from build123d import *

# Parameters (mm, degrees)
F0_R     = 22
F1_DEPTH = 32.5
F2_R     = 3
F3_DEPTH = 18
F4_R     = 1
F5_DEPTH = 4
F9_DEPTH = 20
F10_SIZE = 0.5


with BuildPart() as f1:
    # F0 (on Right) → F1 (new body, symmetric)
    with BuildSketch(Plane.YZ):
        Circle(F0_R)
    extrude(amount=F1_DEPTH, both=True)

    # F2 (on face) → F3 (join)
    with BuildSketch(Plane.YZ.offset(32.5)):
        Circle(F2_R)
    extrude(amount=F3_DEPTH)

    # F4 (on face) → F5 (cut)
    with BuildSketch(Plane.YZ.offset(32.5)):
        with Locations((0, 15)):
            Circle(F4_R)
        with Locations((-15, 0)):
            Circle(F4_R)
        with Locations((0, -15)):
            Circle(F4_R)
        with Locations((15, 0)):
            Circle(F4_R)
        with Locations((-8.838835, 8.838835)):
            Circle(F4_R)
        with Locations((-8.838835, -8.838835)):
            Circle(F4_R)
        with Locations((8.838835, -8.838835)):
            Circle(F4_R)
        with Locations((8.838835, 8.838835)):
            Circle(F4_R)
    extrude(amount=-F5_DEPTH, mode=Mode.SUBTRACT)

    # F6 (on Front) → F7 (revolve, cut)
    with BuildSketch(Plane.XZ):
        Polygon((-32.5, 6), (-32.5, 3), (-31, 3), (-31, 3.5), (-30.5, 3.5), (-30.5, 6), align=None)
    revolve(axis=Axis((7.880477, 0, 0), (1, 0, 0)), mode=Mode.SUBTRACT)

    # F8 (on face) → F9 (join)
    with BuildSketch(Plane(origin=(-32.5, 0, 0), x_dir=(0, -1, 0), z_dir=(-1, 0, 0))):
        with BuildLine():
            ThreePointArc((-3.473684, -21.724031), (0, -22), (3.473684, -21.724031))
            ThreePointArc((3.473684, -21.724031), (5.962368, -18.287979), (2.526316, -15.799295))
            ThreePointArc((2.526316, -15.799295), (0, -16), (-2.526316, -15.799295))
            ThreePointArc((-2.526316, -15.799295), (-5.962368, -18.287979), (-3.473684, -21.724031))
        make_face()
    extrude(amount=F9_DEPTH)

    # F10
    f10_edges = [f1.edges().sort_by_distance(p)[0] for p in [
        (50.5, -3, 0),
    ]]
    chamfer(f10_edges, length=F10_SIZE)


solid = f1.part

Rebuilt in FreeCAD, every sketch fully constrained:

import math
import FreeCAD as App
import Part
import Sketcher

V = App.Vector


def edges_at(feature, points):
    """Names of the edges that pass closest to the given points."""
    edges = feature.Shape.Edges
    near = lambda p: min(range(len(edges)), key=lambda i: edges[i].distToShape(Part.Vertex(*p))[0])
    return sorted({f"Edge{near(p) + 1}" for p in points})

doc = App.newDocument("Part")
body = doc.addObject("PartDesign::Body", "Body")

# Sketch on YZ plane
sketch1 = body.newObject("Sketcher::SketchObject", "Sketch")
sketch1.AttachmentSupport = (doc.getObject("YZ_Plane"), [""])
sketch1.MapMode = "FlatFace"
sketch1.addGeometry(Part.Circle(V(0, 0, 0), V(0, 0, 1), 22), False)
sketch1.addConstraint(Sketcher.Constraint("Coincident", 0, 3, -1, 1))
sketch1.addConstraint(Sketcher.Constraint("Diameter", 0, 44.0))
pad1 = body.newObject("PartDesign::Pad", "Pad")
pad1.Profile = sketch1
pad1.Length = 65
pad1.Midplane = True

# Sketch on YZ plane
sketch2 = body.newObject("Sketcher::SketchObject", "Sketch001")
sketch2.AttachmentSupport = (doc.getObject("YZ_Plane"), [""])
sketch2.MapMode = "FlatFace"
sketch2.AttachmentOffset = App.Placement(V(0, 0, 32.5), App.Rotation())
sketch2.addGeometry(Part.Circle(V(0, 0, 0), V(0, 0, 1), 3), False)
sketch2.addConstraint(Sketcher.Constraint("Coincident", 0, 3, -1, 1))
sketch2.addConstraint(Sketcher.Constraint("Diameter", 0, 6.0))
pad2 = body.newObject("PartDesign::Pad", "Pad001")
pad2.Profile = sketch2
pad2.Length = 18

# Sketch on YZ plane
sketch3 = body.newObject("Sketcher::SketchObject", "Sketch002")
sketch3.AttachmentSupport = (doc.getObject("YZ_Plane"), [""])
sketch3.MapMode = "FlatFace"
sketch3.AttachmentOffset = App.Placement(V(0, 0, 32.5), App.Rotation())
sketch3.addGeometry(Part.Circle(V(0, 15, 0), V(0, 0, 1), 1), False)
sketch3.addGeometry(Part.Circle(V(-15, 0, 0), V(0, 0, 1), 1), False)
sketch3.addGeometry(Part.Circle(V(0, -15, 0), V(0, 0, 1), 1), False)
sketch3.addGeometry(Part.Circle(V(15, 0, 0), V(0, 0, 1), 1), False)
sketch3.addGeometry(Part.Circle(V(-8.838835, 8.838835, 0), V(0, 0, 1), 1), False)
sketch3.addGeometry(Part.Circle(V(-8.838835, -8.838835, 0), V(0, 0, 1), 1), False)
sketch3.addGeometry(Part.Circle(V(8.838835, -8.838835, 0), V(0, 0, 1), 1), False)
sketch3.addGeometry(Part.Circle(V(8.838835, 8.838835, 0), V(0, 0, 1), 1), False)
sketch3.addConstraint(Sketcher.Constraint("Equal", 0, 1))
sketch3.addConstraint(Sketcher.Constraint("Equal", 1, 2))
sketch3.addConstraint(Sketcher.Constraint("Equal", 2, 3))
sketch3.addConstraint(Sketcher.Constraint("Equal", 3, 4))
sketch3.addConstraint(Sketcher.Constraint("Equal", 4, 5))
sketch3.addConstraint(Sketcher.Constraint("Equal", 5, 6))
sketch3.addConstraint(Sketcher.Constraint("Equal", 6, 7))
sketch3.addConstraint(Sketcher.Constraint("Symmetric", 0, 3, 2, 3, -1, 1))
sketch3.addConstraint(Sketcher.Constraint("Symmetric", 1, 3, 3, 3, -1, 1))
sketch3.addConstraint(Sketcher.Constraint("Symmetric", 4, 3, 6, 3, -1, 1))
sketch3.addConstraint(Sketcher.Constraint("Symmetric", 5, 3, 7, 3, -1, 1))
sketch3.addConstraint(Sketcher.Constraint("Symmetric", 5, 3, 6, 3, -2))
sketch3.addConstraint(Sketcher.Constraint("PointOnObject", 0, 3, -2))
sketch3.addConstraint(Sketcher.Constraint("PointOnObject", 1, 3, -1))
sketch3.addConstraint(Sketcher.Constraint("Diameter", 0, 2.0))
sketch3.addConstraint(Sketcher.Constraint("DistanceY", -1, 1, 0, 3, 15.0))
sketch3.addConstraint(Sketcher.Constraint("DistanceX", 1, 3, -1, 1, 15.0))
sketch3.addConstraint(Sketcher.Constraint("DistanceY", 5, 3, 4, 3, 17.67767))
sketch3.addConstraint(Sketcher.Constraint("DistanceX", 5, 3, 6, 3, 17.67767))
pocket1 = body.newObject("PartDesign::Pocket", "Pocket")
pocket1.Profile = sketch3
pocket1.Length = 4

# Sketch on XZ plane
sketch4 = body.newObject("Sketcher::SketchObject", "Sketch003")
sketch4.AttachmentSupport = (doc.getObject("XZ_Plane"), [""])
sketch4.MapMode = "FlatFace"
sketch4.addGeometry(Part.LineSegment(V(-32.5, 6, 0), V(-32.5, 3, 0)), False)
sketch4.addGeometry(Part.LineSegment(V(-32.5, 3, 0), V(-31, 3, 0)), False)
sketch4.addGeometry(Part.LineSegment(V(-31, 3, 0), V(-31, 3.5, 0)), False)
sketch4.addGeometry(Part.LineSegment(V(-31, 3.5, 0), V(-30.5, 3.5, 0)), False)
sketch4.addGeometry(Part.LineSegment(V(-30.5, 3.5, 0), V(-30.5, 6, 0)), False)
sketch4.addGeometry(Part.LineSegment(V(-30.5, 6, 0), V(-32.5, 6, 0)), False)
sketch4.addConstraint(Sketcher.Constraint("Coincident", 0, 2, 1, 1))
sketch4.addConstraint(Sketcher.Constraint("Coincident", 1, 2, 2, 1))
sketch4.addConstraint(Sketcher.Constraint("Coincident", 2, 2, 3, 1))
sketch4.addConstraint(Sketcher.Constraint("Coincident", 3, 2, 4, 1))
sketch4.addConstraint(Sketcher.Constraint("Coincident", 4, 2, 5, 1))
sketch4.addConstraint(Sketcher.Constraint("Coincident", 5, 2, 0, 1))
sketch4.addConstraint(Sketcher.Constraint("Vertical", 0))
sketch4.addConstraint(Sketcher.Constraint("Horizontal", 1))
sketch4.addConstraint(Sketcher.Constraint("Vertical", 2))
sketch4.addConstraint(Sketcher.Constraint("Horizontal", 3))
sketch4.addConstraint(Sketcher.Constraint("Vertical", 4))
sketch4.addConstraint(Sketcher.Constraint("Horizontal", 5))
sketch4.addConstraint(Sketcher.Constraint("Equal", 3, 2))
sketch4.addConstraint(Sketcher.Constraint("DistanceX", 5, 2, 5, 1, 2.0))
sketch4.addConstraint(Sketcher.Constraint("DistanceY", 0, 2, 0, 1, 3.0))
sketch4.addConstraint(Sketcher.Constraint("DistanceX", 1, 1, 1, 2, 1.5))
sketch4.addConstraint(Sketcher.Constraint("DistanceY", -1, 1, 0, 2, 3.0))
sketch4.addConstraint(Sketcher.Constraint("DistanceX", 1, 2, -1, 1, 31.0))
groove = body.newObject("PartDesign::Groove", "Groove")
groove.Profile = sketch4
groove.ReferenceAxis = (sketch4, ["H_Axis"])
groove.Angle = 360

# Sketch on YZ plane
sketch5 = body.newObject("Sketcher::SketchObject", "Sketch004")
sketch5.AttachmentSupport = (doc.getObject("YZ_Plane"), [""])
sketch5.MapMode = "FlatFace"
sketch5.AttachmentOffset = App.Placement(V(0, 0, -32.5), App.Rotation())
sketch5.addGeometry(Part.ArcOfCircle(Part.Circle(V(0, 0.000006, 0), V(0, 0, 1), 22.000006), math.radians(-99.084717), math.radians(-80.915283)), False)
sketch5.addGeometry(Part.ArcOfCircle(Part.Circle(V(-3, -18.761663, 0), V(0, 0, 1), 3), math.radians(80.915284), math.radians(260.915284)), False)
sketch5.addGeometry(Part.ArcOfCircle(Part.Circle(V(0, -0.000012, 0), V(0, 0, 1), 15.999988), math.radians(-99.084728), math.radians(-80.915272)), False)
sketch5.addGeometry(Part.ArcOfCircle(Part.Circle(V(3, -18.761663, 0), V(0, 0, 1), 3), math.radians(-80.915284), math.radians(99.084716)), False)
sketch5.addConstraint(Sketcher.Constraint("Tangent", 0, 1, 1, 2))
sketch5.addConstraint(Sketcher.Constraint("Tangent", 1, 1, 2, 1))
sketch5.addConstraint(Sketcher.Constraint("Tangent", 2, 2, 3, 2))
sketch5.addConstraint(Sketcher.Constraint("Tangent", 3, 1, 0, 2))
sketch5.addConstraint(Sketcher.Constraint("Coincident", 0, 3, -1, 1))
sketch5.addConstraint(Sketcher.Constraint("Equal", 1, 3))
sketch5.addConstraint(Sketcher.Constraint("Horizontal", 1, 3, 3, 3))
sketch5.addConstraint(Sketcher.Constraint("Radius", 1, 3.0))
sketch5.addConstraint(Sketcher.Constraint("DistanceX", 1, 3, -1, 1, 3.0))
sketch5.addConstraint(Sketcher.Constraint("DistanceX", 1, 1, 3, 1, 6.0))
sketch5.addConstraint(Sketcher.Constraint("Radius", 0, 22.000006))
pad3 = body.newObject("PartDesign::Pad", "Pad002")
pad3.Profile = sketch5
pad3.Length = 20
pad3.Reversed = True
doc.recompute()

chamfer = body.newObject("PartDesign::Chamfer", "Chamfer")
chamfer.Base = (pad3, edges_at(pad3, [(50.5, -3, 0)]))
chamfer.Size = 0.5

doc.recompute()
